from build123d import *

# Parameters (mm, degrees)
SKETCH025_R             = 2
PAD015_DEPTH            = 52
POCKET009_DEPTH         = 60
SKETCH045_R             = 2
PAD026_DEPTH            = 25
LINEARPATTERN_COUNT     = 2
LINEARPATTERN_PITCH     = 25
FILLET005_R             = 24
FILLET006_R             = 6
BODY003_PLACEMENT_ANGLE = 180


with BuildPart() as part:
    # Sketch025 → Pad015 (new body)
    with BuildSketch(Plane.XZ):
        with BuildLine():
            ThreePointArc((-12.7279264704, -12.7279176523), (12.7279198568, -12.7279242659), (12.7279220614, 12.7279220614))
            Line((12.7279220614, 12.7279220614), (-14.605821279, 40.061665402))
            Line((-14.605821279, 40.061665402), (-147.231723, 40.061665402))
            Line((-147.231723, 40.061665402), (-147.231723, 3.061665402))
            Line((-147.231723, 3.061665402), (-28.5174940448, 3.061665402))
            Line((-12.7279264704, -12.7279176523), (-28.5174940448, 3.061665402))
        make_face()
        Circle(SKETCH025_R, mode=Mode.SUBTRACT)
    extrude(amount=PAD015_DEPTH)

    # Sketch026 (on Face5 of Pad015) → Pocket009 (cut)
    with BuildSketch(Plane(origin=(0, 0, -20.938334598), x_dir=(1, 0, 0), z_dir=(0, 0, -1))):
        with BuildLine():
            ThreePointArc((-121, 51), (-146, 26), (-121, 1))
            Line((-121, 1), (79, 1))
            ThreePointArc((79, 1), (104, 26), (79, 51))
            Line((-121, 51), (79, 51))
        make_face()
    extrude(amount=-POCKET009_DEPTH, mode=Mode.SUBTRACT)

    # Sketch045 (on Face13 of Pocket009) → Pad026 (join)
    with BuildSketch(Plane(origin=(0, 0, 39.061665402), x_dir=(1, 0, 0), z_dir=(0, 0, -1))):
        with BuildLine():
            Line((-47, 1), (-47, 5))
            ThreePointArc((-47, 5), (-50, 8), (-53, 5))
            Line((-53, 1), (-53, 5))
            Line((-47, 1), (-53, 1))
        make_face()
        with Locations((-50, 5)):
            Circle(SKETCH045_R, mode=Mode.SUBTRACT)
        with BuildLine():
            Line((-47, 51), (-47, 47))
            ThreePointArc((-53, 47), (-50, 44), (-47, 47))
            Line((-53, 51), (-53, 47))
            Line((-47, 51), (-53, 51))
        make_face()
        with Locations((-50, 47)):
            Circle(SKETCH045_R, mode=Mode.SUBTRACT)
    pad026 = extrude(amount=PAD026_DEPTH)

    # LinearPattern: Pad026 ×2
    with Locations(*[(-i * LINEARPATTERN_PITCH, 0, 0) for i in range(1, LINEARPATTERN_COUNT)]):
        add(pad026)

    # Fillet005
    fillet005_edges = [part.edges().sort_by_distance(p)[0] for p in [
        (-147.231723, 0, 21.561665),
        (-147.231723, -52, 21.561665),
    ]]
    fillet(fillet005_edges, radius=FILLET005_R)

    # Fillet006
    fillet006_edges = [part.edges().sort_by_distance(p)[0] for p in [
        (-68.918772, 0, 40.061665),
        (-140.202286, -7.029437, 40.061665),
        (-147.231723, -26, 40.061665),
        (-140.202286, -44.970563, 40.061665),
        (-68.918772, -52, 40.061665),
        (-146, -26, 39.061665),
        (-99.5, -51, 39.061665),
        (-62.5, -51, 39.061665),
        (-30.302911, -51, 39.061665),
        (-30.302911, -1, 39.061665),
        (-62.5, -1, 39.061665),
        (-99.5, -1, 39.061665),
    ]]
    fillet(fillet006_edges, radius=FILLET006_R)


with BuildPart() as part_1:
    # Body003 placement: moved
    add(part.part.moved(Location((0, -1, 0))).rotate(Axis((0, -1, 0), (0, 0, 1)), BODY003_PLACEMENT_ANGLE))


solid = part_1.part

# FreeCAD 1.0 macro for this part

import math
import FreeCAD as App
import Part
import Sketcher
from FreeCAD import Vector
Q = App.Units.Quantity


def edges_at(feature, points):
    """Names of the edges that pass closest to the given points."""
    edges = feature.Shape.Edges
    near = lambda p: min(range(len(edges)), key=lambda i: edges[i].distToShape(Part.Vertex(*p))[0])
    return sorted({f"Edge{near(p) + 1}" for p in points})

doc = App.newDocument("Part")
body = doc.addObject("PartDesign::Body", "Body")

sketch1 = body.newObject("Sketcher::SketchObject", "Sketch")
sketch1.AttachmentSupport = (doc.getObject("XZ_Plane"), [""])
sketch1.MapMode = "FlatFace"
sketch1.addGeometry(Part.ArcOfCircle(Part.Circle(Vector(0, 0, 0), Vector(0, 0, 1), 18), math.radians(-135.00002), math.radians(45)), False)
sketch1.addGeometry(Part.LineSegment(Vector(12.727922, 12.727922, 0), Vector(-14.605821, 40.061665, 0)), False)
sketch1.addGeometry(Part.LineSegment(Vector(-14.605821, 40.061665, 0), Vector(-147.231723, 40.061665, 0)), False)
sketch1.addGeometry(Part.LineSegment(Vector(-147.231723, 40.061665, 0), Vector(-147.231723, 3.061665, 0)), False)
sketch1.addGeometry(Part.LineSegment(Vector(-147.231723, 3.061665, 0), Vector(-28.517494, 3.061665, 0)), False)
sketch1.addGeometry(Part.LineSegment(Vector(-28.517494, 3.061665, 0), Vector(-12.727926, -12.727918, 0)), False)
sketch1.addGeometry(Part.Circle(Vector(0, 0, 0), Vector(0, 0, 1), 2), False)
sketch1.addConstraint(Sketcher.Constraint("Tangent", 0, 2, 1, 1))
sketch1.addConstraint(Sketcher.Constraint("Coincident", 1, 2, 2, 1))
sketch1.addConstraint(Sketcher.Constraint("Coincident", 2, 2, 3, 1))
sketch1.addConstraint(Sketcher.Constraint("Coincident", 3, 2, 4, 1))
sketch1.addConstraint(Sketcher.Constraint("Coincident", 4, 2, 5, 1))
sketch1.addConstraint(Sketcher.Constraint("Tangent", 5, 2, 0, 1))
sketch1.addConstraint(Sketcher.Constraint("Horizontal", 2))
sketch1.addConstraint(Sketcher.Constraint("Vertical", 3))
sketch1.addConstraint(Sketcher.Constraint("Horizontal", 4))
sketch1.addConstraint(Sketcher.Constraint("Coincident", 0, 3, -1, 1))
sketch1.addConstraint(Sketcher.Constraint("Coincident", 6, 3, -1, 1))
sketch1.addConstraint(Sketcher.Constraint("Parallel", 1, 5))
sketch1.addConstraint(Sketcher.Constraint("Diameter", 6, 4.0))
sketch1.addConstraint(Sketcher.Constraint("Radius", 0, 18.0))
sketch1.addConstraint(Sketcher.Constraint("DistanceY", 3, 2, 3, 1, 37.0))
sketch1.addConstraint(Sketcher.Constraint("Angle", 1, Q("135 deg")))
sketch1.addConstraint(Sketcher.Constraint("DistanceX", 2, 2, 2, 1, 132.625902))
sketch1.addConstraint(Sketcher.Constraint("Distance", 1, 38.655751))
pad1 = body.newObject("PartDesign::Pad", "Pad")
pad1.Profile = sketch1
pad1.Length = 52

sketch2 = body.newObject("Sketcher::SketchObject", "Sketch001")
sketch2.AttachmentSupport = (doc.getObject("XY_Plane"), [""])
sketch2.MapMode = "FlatFace"
sketch2.AttachmentOffset = App.Placement(Vector(0, 0, -20.938335), App.Rotation())
sketch2.addGeometry(Part.ArcOfCircle(Part.Circle(Vector(-121, -26, 0), Vector(0, 0, 1), 25), math.radians(90), math.radians(270)), False)
sketch2.addGeometry(Part.LineSegment(Vector(-121, -1, 0), Vector(79, -1, 0)), False)
sketch2.addGeometry(Part.ArcOfCircle(Part.Circle(Vector(79, -26, 0), Vector(0, 0, 1), 25), math.radians(-90), math.radians(90)), False)
sketch2.addGeometry(Part.LineSegment(Vector(79, -51, 0), Vector(-121, -51, 0)), False)
sketch2.addConstraint(Sketcher.Constraint("Tangent", 0, 1, 1, 1))
sketch2.addConstraint(Sketcher.Constraint("Tangent", 1, 2, 2, 2))
sketch2.addConstraint(Sketcher.Constraint("Tangent", 2, 1, 3, 1))
sketch2.addConstraint(Sketcher.Constraint("Tangent", 3, 2, 0, 2))
sketch2.addConstraint(Sketcher.Constraint("Horizontal", 1))
sketch2.addConstraint(Sketcher.Constraint("Horizontal", 3))
sketch2.addConstraint(Sketcher.Constraint("Radius", 0, 25.0))
sketch2.addConstraint(Sketcher.Constraint("DistanceX", 1, 1, 1, 2, 200.0))
sketch2.addConstraint(Sketcher.Constraint("DistanceX", 0, 3, -1, 1, 121.0))
sketch2.addConstraint(Sketcher.Constraint("DistanceY", 0, 3, -1, 1, 26.0))
pocket1 = body.newObject("PartDesign::Pocket", "Pocket")
pocket1.Profile = sketch2
pocket1.Length = 60
pocket1.Reversed = True

sketch3 = body.newObject("Sketcher::SketchObject", "Sketch002")
sketch3.AttachmentSupport = (doc.getObject("XY_Plane"), [""])
sketch3.MapMode = "FlatFace"
sketch3.AttachmentOffset = App.Placement(Vector(0, 0, 39.061665), App.Rotation())
sketch3.addGeometry(Part.LineSegment(Vector(-47, -1, 0), Vector(-47, -5, 0)), False)
sketch3.addGeometry(Part.ArcOfCircle(Part.Circle(Vector(-50, -5, 0), Vector(0, 0, 1), 3), math.radians(180), math.radians(360)), False)
sketch3.addGeometry(Part.LineSegment(Vector(-53, -5, 0), Vector(-53, -1, 0)), False)
sketch3.addGeometry(Part.LineSegment(Vector(-53, -1, 0), Vector(-47, -1, 0)), False)
sketch3.addGeometry(Part.Circle(Vector(-50, -5, 0), Vector(0, 0, 1), 2), False)
sketch3.addGeometry(Part.LineSegment(Vector(-47, -47, 0), Vector(-47, -51, 0)), False)
sketch3.addGeometry(Part.LineSegment(Vector(-47, -51, 0), Vector(-53, -51, 0)), False)
sketch3.addGeometry(Part.LineSegment(Vector(-53, -51, 0), Vector(-53, -47, 0)), False)
sketch3.addGeometry(Part.ArcOfCircle(Part.Circle(Vector(-50, -47, 0), Vector(0, 0, 1), 3), math.radians(0), math.radians(180)), False)
sketch3.addGeometry(Part.Circle(Vector(-50, -47, 0), Vector(0, 0, 1), 2), False)
sketch3.addConstraint(Sketcher.Constraint("Tangent", 0, 2, 1, 2))
sketch3.addConstraint(Sketcher.Constraint("Tangent", 1, 1, 2, 1))
sketch3.addConstraint(Sketcher.Constraint("Coincident", 2, 2, 3, 1))
sketch3.addConstraint(Sketcher.Constraint("Coincident", 3, 2, 0, 1))
sketch3.addConstraint(Sketcher.Constraint("Coincident", 5, 2, 6, 1))
sketch3.addConstraint(Sketcher.Constraint("Coincident", 6, 2, 7, 1))
sketch3.addConstraint(Sketcher.Constraint("Tangent", 7, 2, 8, 2))
sketch3.addConstraint(Sketcher.Constraint("Tangent", 8, 1, 5, 1))
sketch3.addConstraint(Sketcher.Constraint("Vertical", 0))
sketch3.addConstraint(Sketcher.Constraint("Vertical", 2))
sketch3.addConstraint(Sketcher.Constraint("Horizontal", 3))
sketch3.addConstraint(Sketcher.Constraint("Vertical", 5))
sketch3.addConstraint(Sketcher.Constraint("Horizontal", 6))
sketch3.addConstraint(Sketcher.Constraint("Vertical", 7))
sketch3.addConstraint(Sketcher.Constraint("Coincident", 4, 3, 1, 3))
sketch3.addConstraint(Sketcher.Constraint("Coincident", 9, 3, 8, 3))
sketch3.addConstraint(Sketcher.Constraint("Equal", 1, 8))
sketch3.addConstraint(Sketcher.Constraint("Equal", 4, 9))
sketch3.addConstraint(Sketcher.Constraint("Vertical", 4, 3, 8, 3))
sketch3.addConstraint(Sketcher.Constraint("Equal", 2, 5))
sketch3.addConstraint(Sketcher.Constraint("Diameter", 4, 4.0))
sketch3.addConstraint(Sketcher.Constraint("Radius", 1, 3.0))
sketch3.addConstraint(Sketcher.Constraint("DistanceY", 0, 2, 0, 1, 4.0))
sketch3.addConstraint(Sketcher.Constraint("DistanceX", 1, 3, -1, 1, 50.0))
sketch3.addConstraint(Sketcher.Constraint("DistanceY", 1, 3, -1, 1, 5.0))
sketch3.addConstraint(Sketcher.Constraint("DistanceY", 8, 3, -1, 1, 47.0))
pad2 = body.newObject("PartDesign::Pad", "Pad001")
pad2.Profile = sketch3
pad2.Length = 25
pad2.Reversed = True
doc.recompute()

linearpattern = body.newObject("PartDesign::LinearPattern", "LinearPattern")
linearpattern.Originals = [pad2]
linearpattern.Direction = (doc.getObject("X_Axis"), [""])
linearpattern.Mode = "offset"
linearpattern.Offset = 25
linearpattern.Occurrences = 2
linearpattern.Reversed = True
body.Tip = linearpattern
doc.recompute()

fillet = body.newObject("PartDesign::Fillet", "Fillet")
fillet.Base = (linearpattern, edges_at(linearpattern, [(-147.232, 0, 21.562), (-147.232, -52, 21.562)]))
fillet.Radius = 24
doc.recompute()

fillet2 = body.newObject("PartDesign::Fillet", "Fillet001")
fillet2.Base = (fillet, edges_at(fillet, [
    (-68.919, 0, 40.062),
    (-140.202, -7.029, 40.062),
    (-147.232, -26, 40.062),
    (-140.202, -44.971, 40.062),
    (-68.919, -52, 40.062),
    (-146, -26, 39.062),
    (-99.5, -51, 39.062),
    (-62.5, -51, 39.062),
    (-30.303, -51, 39.062),
    (-30.303, -1, 39.062),
    (-62.5, -1, 39.062),
    (-99.5, -1, 39.062),
]))
fillet2.Radius = 6
body2 = doc.addObject("PartDesign::Body", "Body001")
doc.recompute()

body.Placement = App.Placement(Vector(0, -1, 0), App.Rotation(Vector(0, 0, 1), 180))
boolean = body2.newObject("PartDesign::Boolean", "Boolean")
boolean.Type = "Fuse"
boolean.addObjects([body])

doc.recompute()
